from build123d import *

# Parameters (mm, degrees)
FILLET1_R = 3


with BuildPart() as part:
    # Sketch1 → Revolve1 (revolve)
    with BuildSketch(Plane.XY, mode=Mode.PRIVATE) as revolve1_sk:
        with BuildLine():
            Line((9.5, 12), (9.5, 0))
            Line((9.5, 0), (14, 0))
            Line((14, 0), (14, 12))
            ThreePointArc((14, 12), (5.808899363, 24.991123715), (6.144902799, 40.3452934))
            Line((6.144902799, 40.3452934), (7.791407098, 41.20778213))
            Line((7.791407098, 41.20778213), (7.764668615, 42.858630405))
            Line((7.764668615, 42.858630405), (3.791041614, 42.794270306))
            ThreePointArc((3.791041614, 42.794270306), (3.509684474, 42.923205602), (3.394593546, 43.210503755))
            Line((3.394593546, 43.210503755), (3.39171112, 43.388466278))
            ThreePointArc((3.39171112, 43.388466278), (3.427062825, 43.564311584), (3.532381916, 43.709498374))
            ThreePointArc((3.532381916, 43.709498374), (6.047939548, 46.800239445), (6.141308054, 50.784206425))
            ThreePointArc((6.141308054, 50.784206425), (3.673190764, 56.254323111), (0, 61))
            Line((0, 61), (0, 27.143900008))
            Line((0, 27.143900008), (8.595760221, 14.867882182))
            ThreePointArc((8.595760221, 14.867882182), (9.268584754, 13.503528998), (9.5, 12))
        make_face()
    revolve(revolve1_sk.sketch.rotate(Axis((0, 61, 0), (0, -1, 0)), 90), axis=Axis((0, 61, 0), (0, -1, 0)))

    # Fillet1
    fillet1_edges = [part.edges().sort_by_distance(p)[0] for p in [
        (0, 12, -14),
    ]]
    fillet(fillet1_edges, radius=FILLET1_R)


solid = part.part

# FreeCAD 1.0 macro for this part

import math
import FreeCAD as App
import Part
import Sketcher
Q = App.Units.Quantity


def edges_at(feature, points):
    """Names of the edges that pass closest to the given points."""
    edges = feature.Shape.Edges
    near = lambda p: min(range(len(edges)), key=lambda i: edges[i].distToShape(Part.Vertex(*p))[0])
    return sorted({f"Edge{near(p) + 1}" for p in points})

doc = App.newDocument("Part")
body = doc.addObject("PartDesign::Body", "Body")

# Sketch on XY plane
sketch1 = body.newObject("Sketcher::SketchObject", "Sketch")
sketch1.AttachmentSupport = (doc.getObject("XY_Plane"), [""])
sketch1.MapMode = "FlatFace"
sketch1.addGeometry(Part.LineSegment(App.Vector(9.5, 12, 0), App.Vector(9.5, 0, 0)), False)
sketch1.addGeometry(Part.LineSegment(App.Vector(9.5, 0, 0), App.Vector(14, 0, 0)), False)
sketch1.addGeometry(Part.LineSegment(App.Vector(14, 0, 0), App.Vector(14, 12, 0)), False)
sketch1.addGeometry(Part.ArcOfCircle(Part.Circle(App.Vector(31.5, 32.11, 0), App.Vector(0, 0, 1), 26.66), math.radians(162), math.radians(229)), False)
sketch1.addGeometry(Part.LineSegment(App.Vector(6.14, 40.35, 0), App.Vector(7.79, 41.21, 0)), False)
sketch1.addGeometry(Part.LineSegment(App.Vector(7.79, 41.21, 0), App.Vector(7.76, 42.86, 0)), False)
sketch1.addGeometry(Part.LineSegment(App.Vector(7.76, 42.86, 0), App.Vector(3.79, 42.79, 0)), False)
sketch1.addGeometry(Part.ArcOfCircle(Part.Circle(App.Vector(3.81, 43.21, 0), App.Vector(0, 0, 1), 0.42), math.radians(-180), math.radians(-93)), False)
sketch1.addGeometry(Part.LineSegment(App.Vector(3.39, 43.21, 0), App.Vector(3.39, 43.39, 0)), False)
sketch1.addGeometry(Part.ArcOfCircle(Part.Circle(App.Vector(3.81, 43.4, 0), App.Vector(0, 0, 1), 0.42), math.radians(132), math.radians(181)), False)
sketch1.addGeometry(Part.ArcOfCircle(Part.Circle(App.Vector(0.28, 48.93, 0), App.Vector(0, 0, 1), 6.15), math.radians(-58), math.radians(18)), False)
sketch1.addGeometry(Part.ArcOfCircle(Part.Circle(App.Vector(-18.28, 43.06, 0), App.Vector(0, 0, 1), 25.61), math.radians(18), math.radians(44)), False)
sketch1.addGeometry(Part.LineSegment(App.Vector(0, 61, 0), App.Vector(0, 27.14, 0)), False)
sketch1.addGeometry(Part.LineSegment(App.Vector(0, 27.14, 0), App.Vector(8.6, 14.87, 0)), False)
sketch1.addGeometry(Part.ArcOfCircle(Part.Circle(App.Vector(4.5, 12, 0), App.Vector(0, 0, 1), 5), math.radians(0), math.radians(35)), False)
sketch1.addConstraint(Sketcher.Constraint("Coincident", 0, 2, 1, 1))
sketch1.addConstraint(Sketcher.Constraint("Coincident", 1, 2, 2, 1))
sketch1.addConstraint(Sketcher.Constraint("Coincident", 2, 2, 3, 2))
sketch1.addConstraint(Sketcher.Constraint("Coincident", 3, 1, 4, 1))
sketch1.addConstraint(Sketcher.Constraint("Coincident", 4, 2, 5, 1))
sketch1.addConstraint(Sketcher.Constraint("Coincident", 5, 2, 6, 1))
sketch1.addConstraint(Sketcher.Constraint("Coincident", 6, 2, 7, 2))
sketch1.addConstraint(Sketcher.Constraint("Coincident", 7, 1, 8, 1))
sketch1.addConstraint(Sketcher.Constraint("Tangent", 8, 2, 9, 2))
sketch1.addConstraint(Sketcher.Constraint("Coincident", 9, 1, 10, 1))
sketch1.addConstraint(Sketcher.Constraint("Tangent", 10, 2, 11, 1))
sketch1.addConstraint(Sketcher.Constraint("Coincident", 11, 2, 12, 1))
sketch1.addConstraint(Sketcher.Constraint("Coincident", 12, 2, 13, 1))
sketch1.addConstraint(Sketcher.Constraint("Tangent", 13, 2, 14, 2))
sketch1.addConstraint(Sketcher.Constraint("Tangent", 14, 1, 0, 1))
sketch1.addConstraint(Sketcher.Constraint("Vertical", 0))
sketch1.addConstraint(Sketcher.Constraint("Horizontal", 1))
sketch1.addConstraint(Sketcher.Constraint("Vertical", 2))
sketch1.addConstraint(Sketcher.Constraint("Vertical", 12))
sketch1.addConstraint(Sketcher.Constraint("PointOnObject", 0, 2, -1))
sketch1.addConstraint(Sketcher.Constraint("PointOnObject", 11, 2, -2))
sketch1.addConstraint(Sketcher.Constraint("Perpendicular", 5, 6))
sketch1.addConstraint(Sketcher.Constraint("Perpendicular", 6, 8))
sketch1.addConstraint(Sketcher.Constraint("Horizontal", 14, 3, 2, 2))
sketch1.addConstraint(Sketcher.Constraint("Radius", 14, 5.0))
sketch1.addConstraint(Sketcher.Constraint("DistanceY", 0, 2, 0, 1, 12.0))
sketch1.addConstraint(Sketcher.Constraint("Angle", 13, Q("-55 deg")))
sketch1.addConstraint(Sketcher.Constraint("DistanceX", 1, 1, 1, 2, 4.5))
sketch1.addConstraint(Sketcher.Constraint("DistanceX", -1, 1, 1, 2, 14.0))
sketch1.addConstraint(Sketcher.Constraint("DistanceY", -1, 1, 11, 2, 61.0))
sketch1.addConstraint(Sketcher.Constraint("Radius", 3, 26.655831))
sketch1.addConstraint(Sketcher.Constraint("Radius", 7, 0.417159))
sketch1.addConstraint(Sketcher.Constraint("Radius", 10, 6.15141))
sketch1.addConstraint(Sketcher.Constraint("Radius", 9, 0.421148))
sketch1.addConstraint(Sketcher.Constraint("Radius", 11, 25.613192))
sketch1.addConstraint(Sketcher.Constraint("DistanceY", -1, 1, 9, 1, 43.709498))
sketch1.addConstraint(Sketcher.Constraint("DistanceX", 9, 3, 3, 1, 2.332099))
sketch1.addConstraint(Sketcher.Constraint("Distance", 6, 3.974148))
sketch1.addConstraint(Sketcher.Constraint("DistanceX", -1, 1, 3, 3, 31.496611))
sketch1.addConstraint(Sketcher.Constraint("DistanceX", -1, 1, 5, 2, 7.764669))
sketch1.addConstraint(Sketcher.Constraint("DistanceY", -1, 1, 5, 2, 42.85863))
sketch1.addConstraint(Sketcher.Constraint("DistanceX", -1, 1, 6, 2, 3.791042))
sketch1.addConstraint(Sketcher.Constraint("DistanceX", -1, 1, 8, 2, 3.391711))
sketch1.addConstraint(Sketcher.Constraint("DistanceX", -1, 1, 9, 1, 3.532382))
sketch1.addConstraint(Sketcher.Constraint("DistanceX", -1, 1, 10, 2, 6.141308))
sketch1.addConstraint(Sketcher.Constraint("DistanceX", 7, 3, 3, 3, 27.684859))
sketch1.addConstraint(Sketcher.Constraint("DistanceY", 3, 1, 4, 2, 0.862489))
revolution = body.newObject("PartDesign::Revolution", "Revolution")
revolution.Profile = sketch1
revolution.ReferenceAxis = (sketch1, ["V_Axis"])
revolution.Angle = 360
doc.recompute()

fillet = body.newObject("PartDesign::Fillet", "Fillet")
fillet.Base = (revolution, edges_at(revolution, [(0, 12, -14)]))
fillet.Radius = 3

doc.recompute()
